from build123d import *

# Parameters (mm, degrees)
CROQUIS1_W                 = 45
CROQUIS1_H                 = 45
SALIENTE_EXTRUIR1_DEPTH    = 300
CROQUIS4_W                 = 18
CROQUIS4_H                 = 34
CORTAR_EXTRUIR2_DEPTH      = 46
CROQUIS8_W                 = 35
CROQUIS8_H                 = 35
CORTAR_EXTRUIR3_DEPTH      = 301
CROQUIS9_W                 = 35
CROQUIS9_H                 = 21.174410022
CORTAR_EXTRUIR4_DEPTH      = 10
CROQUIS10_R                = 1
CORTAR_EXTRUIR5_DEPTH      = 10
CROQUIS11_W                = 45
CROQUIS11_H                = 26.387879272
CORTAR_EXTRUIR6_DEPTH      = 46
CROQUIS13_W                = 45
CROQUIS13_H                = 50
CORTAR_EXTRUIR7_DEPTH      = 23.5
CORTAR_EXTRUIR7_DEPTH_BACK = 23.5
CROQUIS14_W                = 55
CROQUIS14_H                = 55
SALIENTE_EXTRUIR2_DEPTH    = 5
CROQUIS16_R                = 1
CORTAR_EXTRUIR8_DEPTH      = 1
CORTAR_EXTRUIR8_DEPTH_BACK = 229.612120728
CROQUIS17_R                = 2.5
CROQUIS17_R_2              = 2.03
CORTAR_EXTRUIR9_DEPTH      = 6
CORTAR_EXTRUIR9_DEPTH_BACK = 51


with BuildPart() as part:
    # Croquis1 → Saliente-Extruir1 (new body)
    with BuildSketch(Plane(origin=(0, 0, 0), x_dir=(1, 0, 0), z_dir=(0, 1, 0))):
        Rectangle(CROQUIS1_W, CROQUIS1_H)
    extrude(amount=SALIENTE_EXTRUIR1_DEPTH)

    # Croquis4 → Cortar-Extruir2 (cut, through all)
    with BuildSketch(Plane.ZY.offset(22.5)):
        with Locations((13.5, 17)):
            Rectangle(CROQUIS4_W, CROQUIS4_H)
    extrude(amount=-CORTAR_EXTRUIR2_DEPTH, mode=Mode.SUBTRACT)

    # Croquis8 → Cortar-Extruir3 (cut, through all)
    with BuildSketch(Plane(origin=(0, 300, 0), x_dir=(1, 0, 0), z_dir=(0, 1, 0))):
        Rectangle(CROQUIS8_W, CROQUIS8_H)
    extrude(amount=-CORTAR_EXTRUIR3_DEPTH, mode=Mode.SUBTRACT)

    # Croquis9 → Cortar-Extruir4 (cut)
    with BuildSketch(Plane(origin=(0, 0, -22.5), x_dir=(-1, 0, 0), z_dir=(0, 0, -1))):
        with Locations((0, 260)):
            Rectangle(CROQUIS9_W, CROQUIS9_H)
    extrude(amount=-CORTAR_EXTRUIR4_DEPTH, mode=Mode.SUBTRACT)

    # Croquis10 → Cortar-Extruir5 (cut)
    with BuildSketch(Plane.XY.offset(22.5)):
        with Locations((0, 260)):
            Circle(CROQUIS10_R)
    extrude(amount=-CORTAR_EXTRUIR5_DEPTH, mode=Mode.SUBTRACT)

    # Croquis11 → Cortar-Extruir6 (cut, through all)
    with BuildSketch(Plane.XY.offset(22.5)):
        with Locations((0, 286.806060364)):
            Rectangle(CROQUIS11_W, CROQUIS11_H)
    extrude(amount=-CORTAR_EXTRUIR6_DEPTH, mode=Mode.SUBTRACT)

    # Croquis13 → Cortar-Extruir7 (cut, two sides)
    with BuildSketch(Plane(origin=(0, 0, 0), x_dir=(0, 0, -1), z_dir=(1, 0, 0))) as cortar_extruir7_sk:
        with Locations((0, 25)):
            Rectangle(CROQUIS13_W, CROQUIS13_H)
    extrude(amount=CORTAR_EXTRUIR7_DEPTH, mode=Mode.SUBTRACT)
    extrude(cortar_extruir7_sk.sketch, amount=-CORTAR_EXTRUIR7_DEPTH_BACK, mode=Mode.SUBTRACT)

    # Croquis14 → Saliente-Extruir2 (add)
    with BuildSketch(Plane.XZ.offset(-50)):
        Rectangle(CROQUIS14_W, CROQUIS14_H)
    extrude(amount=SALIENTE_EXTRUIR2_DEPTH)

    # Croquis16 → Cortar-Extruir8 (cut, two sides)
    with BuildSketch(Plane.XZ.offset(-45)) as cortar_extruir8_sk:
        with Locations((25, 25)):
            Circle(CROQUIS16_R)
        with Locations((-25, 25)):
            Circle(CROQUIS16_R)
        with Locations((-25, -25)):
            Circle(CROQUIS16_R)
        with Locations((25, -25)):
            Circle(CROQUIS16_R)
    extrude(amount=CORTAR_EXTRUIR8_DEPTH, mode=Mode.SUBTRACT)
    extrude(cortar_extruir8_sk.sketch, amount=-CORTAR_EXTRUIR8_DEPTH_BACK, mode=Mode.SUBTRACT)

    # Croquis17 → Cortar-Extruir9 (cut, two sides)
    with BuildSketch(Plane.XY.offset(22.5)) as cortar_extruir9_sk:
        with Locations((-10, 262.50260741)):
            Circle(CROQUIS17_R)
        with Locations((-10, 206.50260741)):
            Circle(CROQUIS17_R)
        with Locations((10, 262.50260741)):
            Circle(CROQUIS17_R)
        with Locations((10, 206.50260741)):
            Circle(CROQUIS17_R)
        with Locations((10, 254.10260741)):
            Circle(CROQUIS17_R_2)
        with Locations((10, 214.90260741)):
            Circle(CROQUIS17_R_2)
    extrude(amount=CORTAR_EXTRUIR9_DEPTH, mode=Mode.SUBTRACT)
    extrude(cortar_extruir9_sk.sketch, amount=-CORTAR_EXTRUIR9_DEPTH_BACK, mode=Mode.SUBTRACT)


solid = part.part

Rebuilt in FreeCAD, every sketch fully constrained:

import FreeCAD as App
import Part
import Sketcher

V = App.Vector


def add_polygon(sketch, points):
    """Adds a closed chain of lines whose ends are joined by coincident constraints."""
    first, n = sketch.GeometryCount, len(points)
    for a, b in zip(points, points[1:] + points[:1]):
        sketch.addGeometry(Part.LineSegment(App.Vector(*a, 0), App.Vector(*b, 0)), False)
    for i in range(n):
        sketch.addConstraint(Sketcher.Constraint("Coincident", first + i, 2, first + (i + 1) % n, 1))

doc = App.newDocument("Part")
params = doc.addObject("Spreadsheet::Sheet", "Params")
for row, (alias, value) in enumerate([
    ("sketch1_width", "45 mm"),
    ("pad1_length", "300 mm"),
    ("sketch2_width", "34 mm"),
    ("sketch2_height", "18 mm"),
    ("sketch3_width", "35 mm"),
    ("sketch4_width", "35 mm"),
    ("pocket3_length", "10 mm"),
    ("sketch5_diameter", "2 mm"),
    ("pocket4_length", "10 mm"),
    ("sketch6_width", "45 mm"),
    ("sketch7_width", "50 mm"),
    ("sketch7_height", "45 mm"),
    ("sketch8_width", "55 mm"),
    ("pad2_length", "5 mm"),
    ("sketch9_diameter", "2 mm"),
    ("sketch10_diameter", "5 mm"),
    ("sketch10_diameter2", "4.06 mm"),
], start=1):
    params.set(f"A{row}", alias)
    params.set(f"B{row}", "=" + value)
    params.setAlias(f"B{row}", alias)

body = doc.addObject("PartDesign::Body", "Body")

# Sketch on XZ plane
sketch1 = body.newObject("Sketcher::SketchObject", "Sketch")
sketch1.AttachmentSupport = (doc.getObject("XZ_Plane"), [""])
sketch1.MapMode = "FlatFace"
add_polygon(sketch1, [(-22, -22), (-22, 22), (22, 22), (22, -22)])  # lines 0-3
sketch1.addConstraint([
    Sketcher.Constraint("Vertical", 0),
    Sketcher.Constraint("Horizontal", 1),
    Sketcher.Constraint("Vertical", 2),
    Sketcher.Constraint("Horizontal", 3),
    Sketcher.Constraint("Symmetric", 0, 2, 2, 2, -1, 1),
    Sketcher.Constraint("Equal", 3, 0),
    Sketcher.Constraint("DistanceX", 1, 1, 1, 2, 45.0),
])
sketch1.setExpression("Constraints[10]", "Params.sketch1_width")
pad1 = body.newObject("PartDesign::Pad", "Pad")
pad1.Profile = sketch1
pad1.setExpression("Length", "Params.pad1_length")
pad1.Reversed = True

# Sketch on YZ plane
sketch2 = body.newObject("Sketcher::SketchObject", "Sketch001")
sketch2.AttachmentSupport = (doc.getObject("YZ_Plane"), [""])
sketch2.MapMode = "FlatFace"
sketch2.AttachmentOffset = App.Placement(V(0, 0, -22.5), App.Rotation())
add_polygon(sketch2, [(34, 4), (0, 4), (0, 22), (34, 22)])  # lines 0-3
sketch2.addConstraint([
    Sketcher.Constraint("Horizontal", 0),
    Sketcher.Constraint("Vertical", 1),
    Sketcher.Constraint("Horizontal", 2),
    Sketcher.Constraint("Vertical", 3),
    Sketcher.Constraint("PointOnObject", 0, 2, -2),
    Sketcher.Constraint("DistanceX", 0, 2, 0, 1, 34.0),
    Sketcher.Constraint("DistanceY", 1, 1, 1, 2, 18.0),
    Sketcher.Constraint("DistanceY", -1, 1, 0, 2, 4.5),
])
sketch2.setExpression("Constraints[9]", "Params.sketch2_width")
sketch2.setExpression("Constraints[10]", "Params.sketch2_height")
pocket1 = body.newObject("PartDesign::Pocket", "Pocket")
pocket1.Profile = sketch2
pocket1.Type = "ThroughAll"
pocket1.Reversed = True

# Sketch on XZ plane
sketch3 = body.newObject("Sketcher::SketchObject", "Sketch002")
sketch3.AttachmentSupport = (doc.getObject("XZ_Plane"), [""])
sketch3.MapMode = "FlatFace"
sketch3.AttachmentOffset = App.Placement(V(0, 0, -300), App.Rotation())
add_polygon(sketch3, [(-18, -18), (-18, 18), (18, 18), (18, -18)])  # lines 0-3
sketch3.addConstraint([
    Sketcher.Constraint("Vertical", 0),
    Sketcher.Constraint("Horizontal", 1),
    Sketcher.Constraint("Vertical", 2),
    Sketcher.Constraint("Horizontal", 3),
    Sketcher.Constraint("Symmetric", 0, 2, 2, 2, -1, 1),
    Sketcher.Constraint("Equal", 3, 0),
    Sketcher.Constraint("DistanceX", 1, 1, 1, 2, 35.0),
])
sketch3.setExpression("Constraints[10]", "Params.sketch3_width")
pocket2 = body.newObject("PartDesign::Pocket", "Pocket001")
pocket2.Profile = sketch3
pocket2.Type = "ThroughAll"
pocket2.Reversed = True

# Sketch on XY plane
sketch4 = body.newObject("Sketcher::SketchObject", "Sketch003")
sketch4.AttachmentSupport = (doc.getObject("XY_Plane"), [""])
sketch4.MapMode = "FlatFace"
sketch4.AttachmentOffset = App.Placement(V(0, 0, -22.5), App.Rotation())
add_polygon(sketch4, [(18, 271), (18, 249), (-18, 249), (-18, 271)])  # lines 0-3
sketch4.addConstraint([
    Sketcher.Constraint("Vertical", 0),
    Sketcher.Constraint("Horizontal", 1),
    Sketcher.Constraint("Vertical", 2),
    Sketcher.Constraint("Horizontal", 3),
    Sketcher.Constraint("DistanceX", 1, 2, 1, 1, 35.0),
    Sketcher.Constraint("DistanceX", -1, 1, 0, 2, 17.5),
    Sketcher.Constraint("DistanceY", 0, 2, 0, 1, 21.17441),
    Sketcher.Constraint("DistanceY", -1, 1, 0, 2, 249.412795),
])
sketch4.setExpression("Constraints[8]", "Params.sketch4_width")
pocket3 = body.newObject("PartDesign::Pocket", "Pocket002")
pocket3.Profile = sketch4
pocket3.setExpression("Length", "Params.pocket3_length")
pocket3.Reversed = True

# Sketch on XY plane
sketch5 = body.newObject("Sketcher::SketchObject", "Sketch004")
sketch5.AttachmentSupport = (doc.getObject("XY_Plane"), [""])
sketch5.MapMode = "FlatFace"
sketch5.AttachmentOffset = App.Placement(V(0, 0, 22.5), App.Rotation())
sketch5.addGeometry(Part.Circle(V(0, 260, 0), V(0, 0, 1), 1), False)
sketch5.addConstraint([
    Sketcher.Constraint("PointOnObject", 0, 3, -2),
    Sketcher.Constraint("Diameter", 0, 2.0),
    Sketcher.Constraint("DistanceY", -1, 1, 0, 3, 260.0),
])
sketch5.setExpression("Constraints[1]", "Params.sketch5_diameter")
pocket4 = body.newObject("PartDesign::Pocket", "Pocket003")
pocket4.Profile = sketch5
pocket4.setExpression("Length", "Params.pocket4_length")

# Sketch on XY plane
sketch6 = body.newObject("Sketcher::SketchObject", "Sketch005")
sketch6.AttachmentSupport = (doc.getObject("XY_Plane"), [""])
sketch6.MapMode = "FlatFace"
sketch6.AttachmentOffset = App.Placement(V(0, 0, 22.5), App.Rotation())
add_polygon(sketch6, [(-22, 300), (-22, 274), (22, 274), (22, 300)])  # lines 0-3
sketch6.addConstraint([
    Sketcher.Constraint("Vertical", 0),
    Sketcher.Constraint("Horizontal", 1),
    Sketcher.Constraint("Vertical", 2),
    Sketcher.Constraint("Horizontal", 3),
    Sketcher.Constraint("DistanceX", 1, 1, 1, 2, 45.0),
    Sketcher.Constraint("DistanceY", -1, 1, 2, 2, 300.0),
    Sketcher.Constraint("DistanceX", 0, 2, -1, 1, 22.5),
    Sketcher.Constraint("DistanceY", 0, 2, 0, 1, 26.387879),
])
sketch6.setExpression("Constraints[8]", "Params.sketch6_width")
pocket5 = body.newObject("PartDesign::Pocket", "Pocket004")
pocket5.Profile = sketch6
pocket5.Type = "ThroughAll"

# Sketch on YZ plane
sketch7 = body.newObject("Sketcher::SketchObject", "Sketch006")
sketch7.AttachmentSupport = (doc.getObject("YZ_Plane"), [""])
sketch7.MapMode = "FlatFace"
add_polygon(sketch7, [(50, 22), (0, 22), (0, -22), (50, -22)])  # lines 0-3
sketch7.addConstraint([
    Sketcher.Constraint("Horizontal", 0),
    Sketcher.Constraint("Vertical", 1),
    Sketcher.Constraint("Horizontal", 2),
    Sketcher.Constraint("Vertical", 3),
    Sketcher.Constraint("Symmetric", 0, 2, 1, 2, -1, 1),
    Sketcher.Constraint("DistanceX", 0, 2, 0, 1, 50.0),
    Sketcher.Constraint("DistanceY", 1, 2, 1, 1, 45.0),
])
sketch7.setExpression("Constraints[9]", "Params.sketch7_width")
sketch7.setExpression("Constraints[10]", "Params.sketch7_height")
pocket6 = body.newObject("PartDesign::Pocket", "Pocket005")
pocket6.Profile = sketch7
pocket6.Type = "ThroughAll"
pocket6.Midplane = True

# Sketch on XZ plane
sketch8 = body.newObject("Sketcher::SketchObject", "Sketch007")
sketch8.AttachmentSupport = (doc.getObject("XZ_Plane"), [""])
sketch8.MapMode = "FlatFace"
sketch8.AttachmentOffset = App.Placement(V(0, 0, -50), App.Rotation())
add_polygon(sketch8, [(-28, 28), (-28, -28), (28, -28), (28, 28)])  # lines 0-3
sketch8.addConstraint([
    Sketcher.Constraint("Vertical", 0),
    Sketcher.Constraint("Horizontal", 1),
    Sketcher.Constraint("Vertical", 2),
    Sketcher.Constraint("Horizontal", 3),
    Sketcher.Constraint("Symmetric", 0, 2, 2, 2, -1, 1),
    Sketcher.Constraint("Equal", 3, 0),
    Sketcher.Constraint("DistanceX", 1, 1, 1, 2, 55.0),
])
sketch8.setExpression("Constraints[10]", "Params.sketch8_width")
pad2 = body.newObject("PartDesign::Pad", "Pad001")
pad2.Profile = sketch8
pad2.setExpression("Length", "Params.pad2_length")

# Sketch on XZ plane
sketch9 = body.newObject("Sketcher::SketchObject", "Sketch008")
sketch9.AttachmentSupport = (doc.getObject("XZ_Plane"), [""])
sketch9.MapMode = "FlatFace"
sketch9.AttachmentOffset = App.Placement(V(0, 0, -45), App.Rotation())
sketch9.addGeometry([
    Part.Circle(V(25, 25, 0), V(0, 0, 1), 1),
    Part.Circle(V(-25, 25, 0), V(0, 0, 1), 1),
    Part.Circle(V(-25, -25, 0), V(0, 0, 1), 1),
    Part.Circle(V(25, -25, 0), V(0, 0, 1), 1),
], False)
sketch9.addConstraint([
    Sketcher.Constraint("Equal", 0, 1),
    Sketcher.Constraint("Equal", 1, 2),
    Sketcher.Constraint("Equal", 2, 3),
    Sketcher.Constraint("Symmetric", 0, 3, 2, 3, -1, 1),
    Sketcher.Constraint("Symmetric", 1, 3, 3, 3, -1, 1),
    Sketcher.Constraint("Symmetric", 0, 3, 1, 3, -2),
    Sketcher.Constraint("Diameter", 0, 2.0),
    Sketcher.Constraint("DistanceX", -1, 1, 0, 3, 25.0),
    Sketcher.Constraint("DistanceY", -1, 1, 0, 3, 25.0),
])
sketch9.setExpression("Constraints[6]", "Params.sketch9_diameter")
pocket7 = body.newObject("PartDesign::Pocket", "Pocket006")
pocket7.Profile = sketch9
pocket7.Type = "ThroughAll"
pocket7.Midplane = True

# Sketch on XY plane
sketch10 = body.newObject("Sketcher::SketchObject", "Sketch009")
sketch10.AttachmentSupport = (doc.getObject("XY_Plane"), [""])
sketch10.MapMode = "FlatFace"
sketch10.AttachmentOffset = App.Placement(V(0, 0, 22.5), App.Rotation())
sketch10.addGeometry([
    Part.Circle(V(-10, 262.5, 0), V(0, 0, 1), 2.5),  # 0
    Part.Circle(V(-10, 206.5, 0), V(0, 0, 1), 2.5),  # 1
    Part.Circle(V(10, 262.5, 0), V(0, 0, 1), 2.5),  # 2
    Part.Circle(V(10, 206.5, 0), V(0, 0, 1), 2.5),  # 3
    Part.Circle(V(10, 254.1, 0), V(0, 0, 1), 2),  # 4
    Part.Circle(V(10, 214.9, 0), V(0, 0, 1), 2),  # 5
], False)
sketch10.addConstraint([
    Sketcher.Constraint("Equal", 0, 1),
    Sketcher.Constraint("Equal", 1, 2),
    Sketcher.Constraint("Equal", 2, 3),
    Sketcher.Constraint("Equal", 4, 5),
    Sketcher.Constraint("Symmetric", 0, 3, 2, 3, -2),
    Sketcher.Constraint("Symmetric", 1, 3, 3, 3, -2),
    Sketcher.Constraint("Vertical", 0, 3, 1, 3),
    Sketcher.Constraint("Vertical", 3, 3, 4, 3),
    Sketcher.Constraint("Vertical", 4, 3, 5, 3),
    Sketcher.Constraint("Diameter", 0, 5.0),
    Sketcher.Constraint("Diameter", 4, 4.06),
    Sketcher.Constraint("DistanceX", 0, 3, -1, 1, 10.0),
    Sketcher.Constraint("DistanceY", 1, 3, 0, 3, 56.0),
    Sketcher.Constraint("DistanceY", 4, 3, 2, 3, 8.4),
    Sketcher.Constraint("DistanceY", 3, 3, 5, 3, 8.4),
    Sketcher.Constraint("DistanceY", -1, 1, 0, 3, 262.502607),
])
sketch10.setExpression("Constraints[9]", "Params.sketch10_diameter")
sketch10.setExpression("Constraints[10]", "Params.sketch10_diameter2")
pocket8 = body.newObject("PartDesign::Pocket", "Pocket007")
pocket8.Profile = sketch10
pocket8.Type = "ThroughAll"
pocket8.Midplane = True

doc.recompute()
